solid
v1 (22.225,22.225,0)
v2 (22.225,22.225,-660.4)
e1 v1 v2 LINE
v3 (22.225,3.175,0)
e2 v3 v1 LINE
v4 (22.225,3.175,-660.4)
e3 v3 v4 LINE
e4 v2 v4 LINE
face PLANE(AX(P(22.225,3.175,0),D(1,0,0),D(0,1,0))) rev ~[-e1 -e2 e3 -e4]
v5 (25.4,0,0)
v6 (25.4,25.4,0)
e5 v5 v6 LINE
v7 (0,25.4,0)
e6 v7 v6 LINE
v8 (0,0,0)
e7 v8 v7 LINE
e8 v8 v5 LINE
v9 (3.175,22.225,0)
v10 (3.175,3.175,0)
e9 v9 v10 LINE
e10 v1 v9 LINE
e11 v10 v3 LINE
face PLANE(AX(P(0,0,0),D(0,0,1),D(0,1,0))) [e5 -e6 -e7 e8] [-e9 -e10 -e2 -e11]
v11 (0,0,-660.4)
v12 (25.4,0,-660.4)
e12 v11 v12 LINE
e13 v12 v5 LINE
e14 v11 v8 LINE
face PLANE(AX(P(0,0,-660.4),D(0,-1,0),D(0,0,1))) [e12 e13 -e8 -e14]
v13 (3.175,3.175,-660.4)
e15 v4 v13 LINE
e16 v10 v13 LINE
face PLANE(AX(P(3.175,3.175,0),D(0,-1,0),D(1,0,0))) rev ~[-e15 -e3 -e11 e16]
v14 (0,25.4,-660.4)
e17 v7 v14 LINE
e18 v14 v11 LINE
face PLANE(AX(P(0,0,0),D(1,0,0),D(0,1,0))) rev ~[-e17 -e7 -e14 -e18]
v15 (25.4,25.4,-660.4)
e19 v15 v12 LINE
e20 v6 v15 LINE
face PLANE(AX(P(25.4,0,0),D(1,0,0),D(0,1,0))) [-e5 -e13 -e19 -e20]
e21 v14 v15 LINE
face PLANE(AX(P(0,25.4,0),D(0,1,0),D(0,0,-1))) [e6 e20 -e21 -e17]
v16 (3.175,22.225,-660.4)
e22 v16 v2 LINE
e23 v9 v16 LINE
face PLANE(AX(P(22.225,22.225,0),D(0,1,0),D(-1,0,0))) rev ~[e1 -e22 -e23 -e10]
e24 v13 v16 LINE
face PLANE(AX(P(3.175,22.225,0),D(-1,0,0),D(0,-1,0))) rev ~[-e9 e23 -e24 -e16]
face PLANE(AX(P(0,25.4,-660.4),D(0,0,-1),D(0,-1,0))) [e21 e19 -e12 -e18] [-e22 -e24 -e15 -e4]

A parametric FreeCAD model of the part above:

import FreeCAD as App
import Part
import Sketcher
Q = App.Units.Quantity


def add_polygon(sketch, points):
    """Adds a closed chain of lines whose ends are joined by coincident constraints."""
    first, n = sketch.GeometryCount, len(points)
    for a, b in zip(points, points[1:] + points[:1]):
        sketch.addGeometry(Part.LineSegment(App.Vector(*a, 0), App.Vector(*b, 0)), False)
    for i in range(n):
        sketch.addConstraint(Sketcher.Constraint("Coincident", first + i, 2, first + (i + 1) % n, 1))

doc = App.newDocument("Part")
params = doc.addObject("Spreadsheet::Sheet", "Params")
for row, (alias, value) in enumerate([
    ("sketch1_width", "1 in"),
    ("sketch1_height", "26 in"),
    ("pad1_length", "1 in"),
    ("sketch2_width", "0.75 in"),
    ("pocket1_length", "26.8125 in"),
], start=1):
    params.set(f"A{row}", alias)
    params.set(f"B{row}", "=" + value)
    params.setAlias(f"B{row}", alias)

body = doc.addObject("PartDesign::Body", "Body")

# Sketch on YZ plane
sketch1 = body.newObject("Sketcher::SketchObject", "Sketch")
sketch1.AttachmentSupport = (doc.getObject("YZ_Plane"), [""])
sketch1.MapMode = "FlatFace"
add_polygon(sketch1, [(25, 0), (0, 0), (0, -660), (25, -660)])  # lines 0-3
sketch1.addConstraint(Sketcher.Constraint("Horizontal", 0))
sketch1.addConstraint(Sketcher.Constraint("Vertical", 1))
sketch1.addConstraint(Sketcher.Constraint("Horizontal", 2))
sketch1.addConstraint(Sketcher.Constraint("Vertical", 3))
sketch1.addConstraint(Sketcher.Constraint("Coincident", 0, 2, -1, 1))
sketch1.addConstraint(Sketcher.Constraint("DistanceX", 0, 2, 0, 1, Q("1 in")))
sketch1.addConstraint(Sketcher.Constraint("DistanceY", 1, 2, 1, 1, Q("26 in")))
sketch1.setExpression("Constraints[9]", "Params.sketch1_width")
sketch1.setExpression("Constraints[10]", "Params.sketch1_height")
pad1 = body.newObject("PartDesign::Pad", "Pad")
pad1.Profile = sketch1
pad1.setExpression("Length", "Params.pad1_length")

# Sketch on XY plane
sketch2 = body.newObject("Sketcher::SketchObject", "Sketch001")
sketch2.AttachmentSupport = (doc.getObject("XY_Plane"), [""])
sketch2.MapMode = "FlatFace"
add_polygon(sketch2, [(3, 22), (3, 3), (22, 3), (22, 22)])  # lines 0-3
sketch2.addConstraint(Sketcher.Constraint("Vertical", 0))
sketch2.addConstraint(Sketcher.Constraint("Horizontal", 1))
sketch2.addConstraint(Sketcher.Constraint("Vertical", 2))
sketch2.addConstraint(Sketcher.Constraint("Horizontal", 3))
sketch2.addConstraint(Sketcher.Constraint("Equal", 3, 0))
sketch2.addConstraint(Sketcher.Constraint("DistanceX", 1, 1, 1, 2, Q("0.75 in")))
sketch2.addConstraint(Sketcher.Constraint("DistanceX", -1, 1, 0, 2, Q("0.125 in")))
sketch2.addConstraint(Sketcher.Constraint("DistanceY", -1, 1, 0, 2, Q("0.125 in")))
sketch2.setExpression("Constraints[9]", "Params.sketch2_width")
pocket1 = body.newObject("PartDesign::Pocket", "Pocket")
pocket1.Profile = sketch2
pocket1.setExpression("Length", "Params.pocket1_length")

doc.recompute()
